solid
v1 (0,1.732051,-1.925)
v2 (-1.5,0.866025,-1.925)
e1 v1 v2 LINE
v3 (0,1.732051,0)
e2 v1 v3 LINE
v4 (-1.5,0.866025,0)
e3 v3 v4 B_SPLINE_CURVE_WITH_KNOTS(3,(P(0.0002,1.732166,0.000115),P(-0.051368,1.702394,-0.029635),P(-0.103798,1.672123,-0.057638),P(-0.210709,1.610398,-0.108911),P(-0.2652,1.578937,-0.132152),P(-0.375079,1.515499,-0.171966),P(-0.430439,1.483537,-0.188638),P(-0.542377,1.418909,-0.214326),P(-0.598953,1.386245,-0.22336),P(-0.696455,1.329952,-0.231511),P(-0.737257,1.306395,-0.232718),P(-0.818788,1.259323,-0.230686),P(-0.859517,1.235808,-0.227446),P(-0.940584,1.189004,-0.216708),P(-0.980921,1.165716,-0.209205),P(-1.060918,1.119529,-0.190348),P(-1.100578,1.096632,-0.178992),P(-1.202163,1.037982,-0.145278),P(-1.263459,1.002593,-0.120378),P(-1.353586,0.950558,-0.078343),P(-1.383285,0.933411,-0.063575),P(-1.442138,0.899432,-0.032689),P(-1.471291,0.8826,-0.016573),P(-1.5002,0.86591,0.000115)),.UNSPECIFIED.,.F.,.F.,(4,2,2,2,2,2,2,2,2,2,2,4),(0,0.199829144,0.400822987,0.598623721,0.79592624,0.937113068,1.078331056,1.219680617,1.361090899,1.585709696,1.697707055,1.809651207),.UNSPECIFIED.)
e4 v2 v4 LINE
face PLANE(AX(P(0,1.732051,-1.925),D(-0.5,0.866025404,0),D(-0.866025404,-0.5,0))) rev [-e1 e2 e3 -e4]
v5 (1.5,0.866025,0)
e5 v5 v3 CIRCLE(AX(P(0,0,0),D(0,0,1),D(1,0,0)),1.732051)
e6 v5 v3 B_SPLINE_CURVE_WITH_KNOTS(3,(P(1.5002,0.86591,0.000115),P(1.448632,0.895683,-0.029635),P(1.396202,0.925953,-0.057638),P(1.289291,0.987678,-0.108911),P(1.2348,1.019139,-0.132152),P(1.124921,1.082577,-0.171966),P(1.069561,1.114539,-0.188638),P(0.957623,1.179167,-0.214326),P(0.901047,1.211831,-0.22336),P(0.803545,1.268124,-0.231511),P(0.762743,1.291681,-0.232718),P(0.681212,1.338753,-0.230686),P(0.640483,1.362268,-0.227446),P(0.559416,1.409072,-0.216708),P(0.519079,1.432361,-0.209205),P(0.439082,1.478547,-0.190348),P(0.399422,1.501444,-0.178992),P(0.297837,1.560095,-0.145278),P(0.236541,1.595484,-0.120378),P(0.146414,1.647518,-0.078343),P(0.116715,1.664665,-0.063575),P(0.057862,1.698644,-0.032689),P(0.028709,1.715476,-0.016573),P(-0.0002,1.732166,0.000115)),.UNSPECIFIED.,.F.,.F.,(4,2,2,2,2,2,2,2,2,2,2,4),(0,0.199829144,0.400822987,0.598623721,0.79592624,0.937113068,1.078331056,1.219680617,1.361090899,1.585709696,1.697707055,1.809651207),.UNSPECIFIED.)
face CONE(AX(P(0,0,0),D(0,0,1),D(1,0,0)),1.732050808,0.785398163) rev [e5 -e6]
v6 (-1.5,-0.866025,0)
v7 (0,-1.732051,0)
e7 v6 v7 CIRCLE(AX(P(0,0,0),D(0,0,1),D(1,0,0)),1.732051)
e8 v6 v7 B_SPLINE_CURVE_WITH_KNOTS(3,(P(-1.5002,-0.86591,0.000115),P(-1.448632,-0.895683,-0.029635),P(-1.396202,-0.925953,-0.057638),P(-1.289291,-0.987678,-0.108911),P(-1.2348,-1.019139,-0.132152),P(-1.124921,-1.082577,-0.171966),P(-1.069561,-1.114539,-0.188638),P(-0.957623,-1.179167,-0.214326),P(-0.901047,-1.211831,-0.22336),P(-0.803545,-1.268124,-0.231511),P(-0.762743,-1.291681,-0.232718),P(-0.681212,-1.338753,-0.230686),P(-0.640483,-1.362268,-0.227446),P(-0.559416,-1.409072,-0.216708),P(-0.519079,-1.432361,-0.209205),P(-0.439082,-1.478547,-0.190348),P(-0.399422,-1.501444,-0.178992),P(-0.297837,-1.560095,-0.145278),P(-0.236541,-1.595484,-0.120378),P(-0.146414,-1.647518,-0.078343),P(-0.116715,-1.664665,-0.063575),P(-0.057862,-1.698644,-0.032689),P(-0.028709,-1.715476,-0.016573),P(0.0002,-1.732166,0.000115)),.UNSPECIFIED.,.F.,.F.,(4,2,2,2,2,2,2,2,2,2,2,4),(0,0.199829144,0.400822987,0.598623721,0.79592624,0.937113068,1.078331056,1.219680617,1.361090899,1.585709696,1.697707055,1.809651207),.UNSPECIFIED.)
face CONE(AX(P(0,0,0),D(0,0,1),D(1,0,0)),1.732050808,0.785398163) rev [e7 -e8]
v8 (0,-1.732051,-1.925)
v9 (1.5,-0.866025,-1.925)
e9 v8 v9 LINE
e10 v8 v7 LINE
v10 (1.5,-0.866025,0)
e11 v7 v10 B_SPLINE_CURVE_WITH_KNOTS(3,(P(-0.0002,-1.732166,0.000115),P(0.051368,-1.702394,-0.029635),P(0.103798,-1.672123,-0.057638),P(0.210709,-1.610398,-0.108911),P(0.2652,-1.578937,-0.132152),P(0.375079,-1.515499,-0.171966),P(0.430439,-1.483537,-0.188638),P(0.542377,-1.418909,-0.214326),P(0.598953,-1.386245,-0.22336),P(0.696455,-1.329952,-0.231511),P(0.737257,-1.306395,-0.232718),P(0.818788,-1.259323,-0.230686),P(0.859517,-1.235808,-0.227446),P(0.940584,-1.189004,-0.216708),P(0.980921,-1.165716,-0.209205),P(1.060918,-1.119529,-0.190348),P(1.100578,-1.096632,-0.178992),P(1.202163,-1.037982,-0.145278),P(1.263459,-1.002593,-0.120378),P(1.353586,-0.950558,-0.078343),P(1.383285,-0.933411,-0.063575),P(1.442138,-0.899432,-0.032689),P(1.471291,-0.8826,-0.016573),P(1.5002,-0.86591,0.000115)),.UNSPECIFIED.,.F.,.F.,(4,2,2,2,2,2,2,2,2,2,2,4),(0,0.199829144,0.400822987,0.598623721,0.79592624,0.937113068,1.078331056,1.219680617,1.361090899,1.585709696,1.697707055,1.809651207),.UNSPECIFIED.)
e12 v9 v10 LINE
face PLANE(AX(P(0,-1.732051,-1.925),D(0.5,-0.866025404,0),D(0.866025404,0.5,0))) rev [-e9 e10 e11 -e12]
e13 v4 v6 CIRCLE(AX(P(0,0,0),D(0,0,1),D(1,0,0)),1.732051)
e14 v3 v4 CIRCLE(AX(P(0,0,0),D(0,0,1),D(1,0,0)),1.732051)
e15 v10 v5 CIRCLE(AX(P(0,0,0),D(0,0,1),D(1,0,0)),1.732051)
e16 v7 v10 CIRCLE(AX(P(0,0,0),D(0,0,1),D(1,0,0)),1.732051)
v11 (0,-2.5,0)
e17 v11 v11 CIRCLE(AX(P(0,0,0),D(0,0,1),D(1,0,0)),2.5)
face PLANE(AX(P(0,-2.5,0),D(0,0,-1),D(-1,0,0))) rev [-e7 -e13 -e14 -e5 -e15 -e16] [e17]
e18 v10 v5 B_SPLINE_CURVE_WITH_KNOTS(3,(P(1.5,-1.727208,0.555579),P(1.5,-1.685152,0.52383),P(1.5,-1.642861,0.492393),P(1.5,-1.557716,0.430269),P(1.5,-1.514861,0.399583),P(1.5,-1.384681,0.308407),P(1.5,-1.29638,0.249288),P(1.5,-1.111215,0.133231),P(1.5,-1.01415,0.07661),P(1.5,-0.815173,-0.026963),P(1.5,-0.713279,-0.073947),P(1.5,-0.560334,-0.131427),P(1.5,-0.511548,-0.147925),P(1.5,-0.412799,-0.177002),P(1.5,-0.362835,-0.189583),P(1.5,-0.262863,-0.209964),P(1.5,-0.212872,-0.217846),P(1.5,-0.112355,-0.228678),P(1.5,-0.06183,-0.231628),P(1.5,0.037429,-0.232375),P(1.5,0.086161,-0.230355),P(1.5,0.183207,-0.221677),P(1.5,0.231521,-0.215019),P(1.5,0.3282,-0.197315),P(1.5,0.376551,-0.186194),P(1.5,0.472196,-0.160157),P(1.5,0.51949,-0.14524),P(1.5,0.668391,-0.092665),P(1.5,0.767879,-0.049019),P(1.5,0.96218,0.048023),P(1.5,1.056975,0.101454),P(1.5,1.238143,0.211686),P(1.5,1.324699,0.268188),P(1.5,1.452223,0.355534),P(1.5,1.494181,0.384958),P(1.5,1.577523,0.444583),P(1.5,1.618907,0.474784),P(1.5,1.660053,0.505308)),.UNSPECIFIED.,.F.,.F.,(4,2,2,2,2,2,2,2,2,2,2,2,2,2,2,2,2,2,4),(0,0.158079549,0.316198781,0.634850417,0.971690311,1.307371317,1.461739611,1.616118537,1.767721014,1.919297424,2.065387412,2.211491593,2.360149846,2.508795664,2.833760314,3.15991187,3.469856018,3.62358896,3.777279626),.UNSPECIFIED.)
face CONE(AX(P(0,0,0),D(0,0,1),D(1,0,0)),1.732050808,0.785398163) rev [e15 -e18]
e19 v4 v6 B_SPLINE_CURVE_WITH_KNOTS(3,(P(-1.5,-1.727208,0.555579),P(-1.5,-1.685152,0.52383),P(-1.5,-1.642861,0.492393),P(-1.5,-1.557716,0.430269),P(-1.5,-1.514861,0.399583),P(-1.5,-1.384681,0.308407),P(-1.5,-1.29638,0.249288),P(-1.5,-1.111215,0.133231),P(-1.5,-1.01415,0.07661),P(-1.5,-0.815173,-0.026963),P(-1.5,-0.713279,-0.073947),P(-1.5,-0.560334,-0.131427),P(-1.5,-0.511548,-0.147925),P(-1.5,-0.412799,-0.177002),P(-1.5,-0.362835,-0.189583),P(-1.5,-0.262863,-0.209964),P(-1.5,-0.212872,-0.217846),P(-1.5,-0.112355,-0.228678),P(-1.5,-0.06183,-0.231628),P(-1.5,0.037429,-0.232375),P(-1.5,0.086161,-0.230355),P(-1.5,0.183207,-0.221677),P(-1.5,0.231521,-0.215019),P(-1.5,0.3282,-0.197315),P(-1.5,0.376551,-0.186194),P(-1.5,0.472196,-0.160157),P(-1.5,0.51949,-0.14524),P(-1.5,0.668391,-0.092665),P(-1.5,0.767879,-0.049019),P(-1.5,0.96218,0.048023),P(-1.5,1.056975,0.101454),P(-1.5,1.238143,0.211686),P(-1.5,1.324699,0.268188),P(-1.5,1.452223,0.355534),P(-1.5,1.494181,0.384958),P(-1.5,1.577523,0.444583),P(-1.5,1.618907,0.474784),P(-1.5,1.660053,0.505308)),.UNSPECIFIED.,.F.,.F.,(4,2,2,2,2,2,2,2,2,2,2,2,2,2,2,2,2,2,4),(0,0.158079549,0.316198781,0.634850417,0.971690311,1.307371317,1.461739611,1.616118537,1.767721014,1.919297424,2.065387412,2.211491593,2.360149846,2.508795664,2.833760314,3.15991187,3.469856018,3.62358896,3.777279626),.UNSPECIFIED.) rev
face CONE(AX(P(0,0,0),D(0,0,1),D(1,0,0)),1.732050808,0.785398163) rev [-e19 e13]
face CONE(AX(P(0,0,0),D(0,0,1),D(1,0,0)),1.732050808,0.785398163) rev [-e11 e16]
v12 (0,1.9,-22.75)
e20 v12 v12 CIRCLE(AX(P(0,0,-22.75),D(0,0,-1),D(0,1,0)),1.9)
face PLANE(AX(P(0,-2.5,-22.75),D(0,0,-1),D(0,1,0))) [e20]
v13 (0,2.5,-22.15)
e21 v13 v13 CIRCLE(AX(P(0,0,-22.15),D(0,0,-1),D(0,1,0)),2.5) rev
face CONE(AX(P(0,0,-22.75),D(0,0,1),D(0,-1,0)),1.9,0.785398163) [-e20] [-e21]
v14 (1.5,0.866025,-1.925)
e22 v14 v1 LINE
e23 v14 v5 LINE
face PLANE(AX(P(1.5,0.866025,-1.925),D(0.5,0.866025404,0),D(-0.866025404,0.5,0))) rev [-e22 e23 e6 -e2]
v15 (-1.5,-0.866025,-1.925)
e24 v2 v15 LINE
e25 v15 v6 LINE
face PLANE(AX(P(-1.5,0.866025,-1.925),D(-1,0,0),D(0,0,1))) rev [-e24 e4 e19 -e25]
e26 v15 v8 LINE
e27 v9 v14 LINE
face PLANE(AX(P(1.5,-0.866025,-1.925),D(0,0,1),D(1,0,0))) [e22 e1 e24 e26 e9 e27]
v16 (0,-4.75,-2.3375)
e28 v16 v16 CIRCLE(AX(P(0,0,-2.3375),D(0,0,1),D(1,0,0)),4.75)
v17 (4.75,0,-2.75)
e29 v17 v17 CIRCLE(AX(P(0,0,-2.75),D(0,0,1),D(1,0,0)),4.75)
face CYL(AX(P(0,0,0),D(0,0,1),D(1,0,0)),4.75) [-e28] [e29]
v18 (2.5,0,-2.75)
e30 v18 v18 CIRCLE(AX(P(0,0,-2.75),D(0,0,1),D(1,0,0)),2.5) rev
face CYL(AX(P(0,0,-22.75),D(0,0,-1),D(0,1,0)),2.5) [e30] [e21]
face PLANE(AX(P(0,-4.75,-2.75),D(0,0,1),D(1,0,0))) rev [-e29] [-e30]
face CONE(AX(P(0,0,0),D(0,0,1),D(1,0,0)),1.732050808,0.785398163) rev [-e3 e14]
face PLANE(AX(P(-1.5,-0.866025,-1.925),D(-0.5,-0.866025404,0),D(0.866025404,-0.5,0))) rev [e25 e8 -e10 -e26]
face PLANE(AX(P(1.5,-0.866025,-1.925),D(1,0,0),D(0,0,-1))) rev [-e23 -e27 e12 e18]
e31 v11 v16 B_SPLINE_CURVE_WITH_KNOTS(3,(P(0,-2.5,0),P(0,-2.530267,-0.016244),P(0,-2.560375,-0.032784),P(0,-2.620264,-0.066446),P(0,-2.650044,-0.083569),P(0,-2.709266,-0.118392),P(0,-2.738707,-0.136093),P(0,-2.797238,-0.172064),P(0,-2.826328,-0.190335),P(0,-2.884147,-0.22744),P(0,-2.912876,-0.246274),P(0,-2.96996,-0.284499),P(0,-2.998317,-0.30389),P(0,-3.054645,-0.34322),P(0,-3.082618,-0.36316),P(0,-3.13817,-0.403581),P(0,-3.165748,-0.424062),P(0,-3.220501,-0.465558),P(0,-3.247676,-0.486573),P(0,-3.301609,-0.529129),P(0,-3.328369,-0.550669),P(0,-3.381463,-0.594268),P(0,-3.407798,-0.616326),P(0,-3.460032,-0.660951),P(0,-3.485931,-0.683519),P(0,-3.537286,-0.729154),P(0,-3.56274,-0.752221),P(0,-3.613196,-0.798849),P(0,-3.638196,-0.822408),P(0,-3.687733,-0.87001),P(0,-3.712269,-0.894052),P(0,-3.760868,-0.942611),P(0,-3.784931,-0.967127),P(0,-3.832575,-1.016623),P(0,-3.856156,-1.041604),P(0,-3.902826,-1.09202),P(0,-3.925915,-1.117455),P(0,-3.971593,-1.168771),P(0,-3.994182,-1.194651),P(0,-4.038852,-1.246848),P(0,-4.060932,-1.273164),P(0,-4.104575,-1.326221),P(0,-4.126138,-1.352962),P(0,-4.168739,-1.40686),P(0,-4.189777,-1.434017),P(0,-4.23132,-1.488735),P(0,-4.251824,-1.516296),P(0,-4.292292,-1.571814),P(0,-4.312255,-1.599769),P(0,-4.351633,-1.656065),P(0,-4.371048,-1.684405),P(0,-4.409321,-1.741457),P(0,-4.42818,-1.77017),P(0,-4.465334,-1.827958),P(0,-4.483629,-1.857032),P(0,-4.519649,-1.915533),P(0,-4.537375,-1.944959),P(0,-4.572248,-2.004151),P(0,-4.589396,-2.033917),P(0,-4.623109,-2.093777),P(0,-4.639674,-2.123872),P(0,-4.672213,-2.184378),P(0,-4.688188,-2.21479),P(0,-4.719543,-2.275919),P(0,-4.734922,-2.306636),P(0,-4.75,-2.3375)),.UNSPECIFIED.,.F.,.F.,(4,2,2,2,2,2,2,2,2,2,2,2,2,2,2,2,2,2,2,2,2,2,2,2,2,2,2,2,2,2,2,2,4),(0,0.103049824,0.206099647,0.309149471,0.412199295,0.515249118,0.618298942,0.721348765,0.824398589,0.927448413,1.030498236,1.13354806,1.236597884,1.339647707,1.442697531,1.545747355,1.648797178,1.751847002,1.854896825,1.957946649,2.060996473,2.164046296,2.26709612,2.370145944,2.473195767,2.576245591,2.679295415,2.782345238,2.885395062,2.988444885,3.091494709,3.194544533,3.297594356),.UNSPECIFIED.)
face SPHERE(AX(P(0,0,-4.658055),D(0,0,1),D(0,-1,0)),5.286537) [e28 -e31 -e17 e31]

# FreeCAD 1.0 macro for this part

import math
import FreeCAD as App
import Part
import Sketcher

V = App.Vector
Q = App.Units.Quantity


def edges_at(feature, points):
    """Names of the edges that pass closest to the given points."""
    edges = feature.Shape.Edges
    near = lambda p: min(range(len(edges)), key=lambda i: edges[i].distToShape(Part.Vertex(*p))[0])
    return sorted({f"Edge{near(p) + 1}" for p in points})

doc = App.newDocument("Part")
body = doc.addObject("PartDesign::Body", "Body")

# Sketch on YZ plane
sketch1 = body.newObject("Sketcher::SketchObject", "Sketch")
sketch1.AttachmentSupport = (doc.getObject("YZ_Plane"), [""])
sketch1.MapMode = "FlatFace"
sketch1.addGeometry([
    Part.LineSegment(V(2.5, -2.8, 0), V(0, -2.8, 0)),
    Part.LineSegment(V(0, -2.8, 0), V(0, -22.8, 0)),
    Part.LineSegment(V(0, -22.8, 0), V(2.5, -22.8, 0)),
    Part.LineSegment(V(2.5, -22.8, 0), V(2.5, -2.8, 0)),
], False)
sketch1.addConstraint([
    Sketcher.Constraint("Coincident", 0, 2, 1, 1),
    Sketcher.Constraint("Coincident", 1, 2, 2, 1),
    Sketcher.Constraint("Coincident", 2, 2, 3, 1),
    Sketcher.Constraint("Coincident", 3, 2, 0, 1),
    Sketcher.Constraint("Horizontal", 0),
    Sketcher.Constraint("Vertical", 1),
    Sketcher.Constraint("Horizontal", 2),
    Sketcher.Constraint("Vertical", 3),
    Sketcher.Constraint("PointOnObject", 0, 2, -2),
    Sketcher.Constraint("DistanceY", 1, 2, 1, 1, 20.0),
    Sketcher.Constraint("DistanceX", 0, 2, 0, 1, 2.5),
    Sketcher.Constraint("DistanceY", 0, 2, -1, 1, 2.75),
])
revolution = body.newObject("PartDesign::Revolution", "Revolution")
revolution.Profile = sketch1
revolution.ReferenceAxis = (sketch1, ["V_Axis"])
revolution.Angle = 360
doc.recompute()

chamfer = body.newObject("PartDesign::Chamfer", "Chamfer")
chamfer.Base = (revolution, edges_at(revolution, [(0, -2.5, -22.75)]))
chamfer.Size = 0.6

# Sketch on YZ plane
sketch2 = body.newObject("Sketcher::SketchObject", "Sketch001")
sketch2.AttachmentSupport = (doc.getObject("YZ_Plane"), [""])
sketch2.MapMode = "FlatFace"
sketch2.addGeometry([
    Part.LineSegment(V(4.75, -2.75, 0), V(4.75, -2.34, 0)),  # 0
    Part.ArcOfCircle(Part.Circle(V(0, -4.66, 0), V(0, 0, 1), 5.29), math.radians(26), math.radians(62)),  # 1
    Part.LineSegment(V(2.5, 0, 0), V(0, 0, 0)),  # 2
    Part.LineSegment(V(0, 0, 0), V(0, -2.75, 0)),  # 3
    Part.LineSegment(V(0, -2.75, 0), V(4.75, -2.75, 0)),  # 4
], False)
sketch2.addConstraint([
    Sketcher.Constraint("Coincident", 0, 2, 1, 1),
    Sketcher.Constraint("Coincident", 1, 2, 2, 1),
    Sketcher.Constraint("Coincident", 2, 2, 3, 1),
    Sketcher.Constraint("Coincident", 3, 2, 4, 1),
    Sketcher.Constraint("Coincident", 4, 2, 0, 1),
    Sketcher.Constraint("Vertical", 0),
    Sketcher.Constraint("Horizontal", 2),
    Sketcher.Constraint("Vertical", 3),
    Sketcher.Constraint("Horizontal", 4),
    Sketcher.Constraint("Coincident", 2, 2, -1, 1),
    Sketcher.Constraint("PointOnObject", 1, 3, -2),
    Sketcher.Constraint("DistanceX", 2, 2, 2, 1, 2.5),
    Sketcher.Constraint("DistanceX", 4, 1, 4, 2, 4.75),
    Sketcher.Constraint("DistanceY", 3, 2, 3, 1, 2.75),
    Sketcher.Constraint("DistanceY", 0, 1, 0, 2, 0.4125),
])
revolution2 = body.newObject("PartDesign::Revolution", "Revolution001")
revolution2.Profile = sketch2
revolution2.ReferenceAxis = (sketch2, ["V_Axis"])
revolution2.Angle = 360

# Sketch on XY plane
sketch3 = body.newObject("Sketcher::SketchObject", "Sketch002")
sketch3.AttachmentSupport = (doc.getObject("XY_Plane"), [""])
sketch3.MapMode = "FlatFace"
sketch3.addGeometry([
    Part.LineSegment(V(1.5, -0.9, 0), V(1.5, 0.9, 0)),  # 0
    Part.LineSegment(V(1.5, 0.9, 0), V(0, 1.7, 0)),  # 1
    Part.LineSegment(V(0, 1.7, 0), V(-1.5, 0.9, 0)),  # 2
    Part.LineSegment(V(-1.5, 0.9, 0), V(-1.5, -0.9, 0)),  # 3
    Part.LineSegment(V(-1.5, -0.9, 0), V(0, -1.7, 0)),  # 4
    Part.LineSegment(V(0, -1.7, 0), V(1.5, -0.9, 0)),  # 5
], False)
sketch3.addConstraint([
    Sketcher.Constraint("Coincident", 0, 2, 1, 1),
    Sketcher.Constraint("Coincident", 1, 2, 2, 1),
    Sketcher.Constraint("Coincident", 2, 2, 3, 1),
    Sketcher.Constraint("Coincident", 3, 2, 4, 1),
    Sketcher.Constraint("Coincident", 4, 2, 5, 1),
    Sketcher.Constraint("Coincident", 5, 2, 0, 1),
    Sketcher.Constraint("Vertical", 0),
    Sketcher.Constraint("Vertical", 3),
    Sketcher.Constraint("Symmetric", 0, 2, 3, 2, -1, 1),
    Sketcher.Constraint("Symmetric", 1, 2, 4, 2, -1, 1),
    Sketcher.Constraint("PointOnObject", 1, 2, -2),
    Sketcher.Constraint("Parallel", 2, 5),
    Sketcher.Constraint("Horizontal", 0, 2, 2, 2),
    Sketcher.Constraint("Angle", 1, Q("150 deg")),
    Sketcher.Constraint("DistanceX", 2, 2, 0, 2, 3.0),
    Sketcher.Constraint("DistanceY", 0, 1, 0, 2, 1.732051),
])
pocket1 = body.newObject("PartDesign::Pocket", "Pocket")
pocket1.Profile = sketch3
pocket1.Length = 1.925

# Sketch on YZ plane
sketch4 = body.newObject("Sketcher::SketchObject", "Sketch003")
sketch4.AttachmentSupport = (doc.getObject("YZ_Plane"), [""])
sketch4.MapMode = "FlatFace"
sketch4.addGeometry([
    Part.LineSegment(V(0, 0, 0), V(-1.7, 0, 0)),
    Part.LineSegment(V(-1.7, 0, 0), V(0, -1.7, 0)),
    Part.LineSegment(V(0, -1.7, 0), V(0, 0, 0)),
], False)
sketch4.addConstraint([
    Sketcher.Constraint("Coincident", 0, 2, 1, 1),
    Sketcher.Constraint("Coincident", 1, 2, 2, 1),
    Sketcher.Constraint("Coincident", 2, 2, 0, 1),
    Sketcher.Constraint("Horizontal", 0),
    Sketcher.Constraint("Vertical", 2),
    Sketcher.Constraint("Coincident", 2, 2, -1, 1),
    Sketcher.Constraint("Equal", 0, 2),
    Sketcher.Constraint("DistanceX", 0, 2, 0, 1, 1.732051),
])
groove = body.newObject("PartDesign::Groove", "Groove")
groove.Profile = sketch4
groove.ReferenceAxis = (sketch4, ["V_Axis"])
groove.Angle = 360

doc.recompute()
